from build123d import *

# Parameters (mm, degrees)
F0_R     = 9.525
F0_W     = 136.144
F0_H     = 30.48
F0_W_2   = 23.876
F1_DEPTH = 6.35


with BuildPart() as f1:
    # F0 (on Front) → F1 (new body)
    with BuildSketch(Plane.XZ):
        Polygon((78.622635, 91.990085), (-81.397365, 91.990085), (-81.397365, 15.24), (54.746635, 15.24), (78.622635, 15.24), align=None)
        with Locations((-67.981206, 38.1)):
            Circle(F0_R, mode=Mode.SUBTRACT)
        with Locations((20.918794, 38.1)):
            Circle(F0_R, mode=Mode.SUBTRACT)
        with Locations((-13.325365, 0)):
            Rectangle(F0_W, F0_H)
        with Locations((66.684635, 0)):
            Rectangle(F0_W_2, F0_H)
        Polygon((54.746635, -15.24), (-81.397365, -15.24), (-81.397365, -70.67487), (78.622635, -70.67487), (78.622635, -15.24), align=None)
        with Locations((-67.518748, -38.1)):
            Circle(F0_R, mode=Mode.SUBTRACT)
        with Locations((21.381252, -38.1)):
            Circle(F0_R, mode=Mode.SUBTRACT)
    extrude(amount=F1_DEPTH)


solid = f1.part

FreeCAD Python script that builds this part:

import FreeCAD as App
import Part
import Sketcher
Q = App.Units.Quantity

doc = App.newDocument("Part")
body = doc.addObject("PartDesign::Body", "Body")

sketch1 = body.newObject("Sketcher::SketchObject", "Sketch")
sketch1.AttachmentSupport = (doc.getObject("XZ_Plane"), [""])
sketch1.MapMode = "FlatFace"
sketch1.addGeometry([
    Part.LineSegment(App.Vector(79, 92, 0), App.Vector(-81, 92, 0)),
    Part.LineSegment(App.Vector(-81, 92, 0), App.Vector(-81, -71, 0)),
    Part.LineSegment(App.Vector(-81, -71, 0), App.Vector(79, -71, 0)),
    Part.LineSegment(App.Vector(79, -71, 0), App.Vector(79, 92, 0)),
    Part.Circle(App.Vector(-68, -38, 0), App.Vector(0, 0, 1), 10),
    Part.Circle(App.Vector(21, -38, 0), App.Vector(0, 0, 1), 10),
    Part.Circle(App.Vector(-68, 38, 0), App.Vector(0, 0, 1), 10),
    Part.Circle(App.Vector(21, 38, 0), App.Vector(0, 0, 1), 10),
], False)
sketch1.addConstraint([
    Sketcher.Constraint("Coincident", 0, 2, 1, 1),
    Sketcher.Constraint("Coincident", 1, 2, 2, 1),
    Sketcher.Constraint("Coincident", 2, 2, 3, 1),
    Sketcher.Constraint("Coincident", 3, 2, 0, 1),
    Sketcher.Constraint("Horizontal", 0),
    Sketcher.Constraint("Vertical", 1),
    Sketcher.Constraint("Horizontal", 2),
    Sketcher.Constraint("Vertical", 3),
    Sketcher.Constraint("Equal", 4, 5),
    Sketcher.Constraint("Equal", 5, 6),
    Sketcher.Constraint("Equal", 6, 7),
    Sketcher.Constraint("Horizontal", 4, 3, 5, 3),
    Sketcher.Constraint("Horizontal", 6, 3, 7, 3),
    Sketcher.Constraint("Diameter", 4, Q("0.75 in")),
    Sketcher.Constraint("DistanceX", 0, 2, 0, 1, Q("6.3 in")),
    Sketcher.Constraint("DistanceY", 4, 3, 6, 3, Q("3 in")),
    Sketcher.Constraint("DistanceY", 4, 3, -1, 1, Q("1.5 in")),
    Sketcher.Constraint("DistanceX", 4, 3, 5, 3, Q("3.5 in")),
    Sketcher.Constraint("DistanceX", 6, 3, 7, 3, Q("3.5 in")),
    Sketcher.Constraint("DistanceY", 1, 2, 1, 1, Q("162.664955 mm")),
    Sketcher.Constraint("DistanceX", 4, 3, -1, 1, Q("67.518748 mm")),
    Sketcher.Constraint("DistanceY", 1, 2, -1, 1, Q("70.67487 mm")),
    Sketcher.Constraint("DistanceX", 6, 3, 5, 3, Q("89.362458 mm")),
    Sketcher.Constraint("DistanceX", 0, 2, 6, 3, Q("13.416159 mm")),
])
pad1 = body.newObject("PartDesign::Pad", "Pad")
pad1.Profile = sketch1
pad1.Length = Q("0.25 in")

doc.recompute()
